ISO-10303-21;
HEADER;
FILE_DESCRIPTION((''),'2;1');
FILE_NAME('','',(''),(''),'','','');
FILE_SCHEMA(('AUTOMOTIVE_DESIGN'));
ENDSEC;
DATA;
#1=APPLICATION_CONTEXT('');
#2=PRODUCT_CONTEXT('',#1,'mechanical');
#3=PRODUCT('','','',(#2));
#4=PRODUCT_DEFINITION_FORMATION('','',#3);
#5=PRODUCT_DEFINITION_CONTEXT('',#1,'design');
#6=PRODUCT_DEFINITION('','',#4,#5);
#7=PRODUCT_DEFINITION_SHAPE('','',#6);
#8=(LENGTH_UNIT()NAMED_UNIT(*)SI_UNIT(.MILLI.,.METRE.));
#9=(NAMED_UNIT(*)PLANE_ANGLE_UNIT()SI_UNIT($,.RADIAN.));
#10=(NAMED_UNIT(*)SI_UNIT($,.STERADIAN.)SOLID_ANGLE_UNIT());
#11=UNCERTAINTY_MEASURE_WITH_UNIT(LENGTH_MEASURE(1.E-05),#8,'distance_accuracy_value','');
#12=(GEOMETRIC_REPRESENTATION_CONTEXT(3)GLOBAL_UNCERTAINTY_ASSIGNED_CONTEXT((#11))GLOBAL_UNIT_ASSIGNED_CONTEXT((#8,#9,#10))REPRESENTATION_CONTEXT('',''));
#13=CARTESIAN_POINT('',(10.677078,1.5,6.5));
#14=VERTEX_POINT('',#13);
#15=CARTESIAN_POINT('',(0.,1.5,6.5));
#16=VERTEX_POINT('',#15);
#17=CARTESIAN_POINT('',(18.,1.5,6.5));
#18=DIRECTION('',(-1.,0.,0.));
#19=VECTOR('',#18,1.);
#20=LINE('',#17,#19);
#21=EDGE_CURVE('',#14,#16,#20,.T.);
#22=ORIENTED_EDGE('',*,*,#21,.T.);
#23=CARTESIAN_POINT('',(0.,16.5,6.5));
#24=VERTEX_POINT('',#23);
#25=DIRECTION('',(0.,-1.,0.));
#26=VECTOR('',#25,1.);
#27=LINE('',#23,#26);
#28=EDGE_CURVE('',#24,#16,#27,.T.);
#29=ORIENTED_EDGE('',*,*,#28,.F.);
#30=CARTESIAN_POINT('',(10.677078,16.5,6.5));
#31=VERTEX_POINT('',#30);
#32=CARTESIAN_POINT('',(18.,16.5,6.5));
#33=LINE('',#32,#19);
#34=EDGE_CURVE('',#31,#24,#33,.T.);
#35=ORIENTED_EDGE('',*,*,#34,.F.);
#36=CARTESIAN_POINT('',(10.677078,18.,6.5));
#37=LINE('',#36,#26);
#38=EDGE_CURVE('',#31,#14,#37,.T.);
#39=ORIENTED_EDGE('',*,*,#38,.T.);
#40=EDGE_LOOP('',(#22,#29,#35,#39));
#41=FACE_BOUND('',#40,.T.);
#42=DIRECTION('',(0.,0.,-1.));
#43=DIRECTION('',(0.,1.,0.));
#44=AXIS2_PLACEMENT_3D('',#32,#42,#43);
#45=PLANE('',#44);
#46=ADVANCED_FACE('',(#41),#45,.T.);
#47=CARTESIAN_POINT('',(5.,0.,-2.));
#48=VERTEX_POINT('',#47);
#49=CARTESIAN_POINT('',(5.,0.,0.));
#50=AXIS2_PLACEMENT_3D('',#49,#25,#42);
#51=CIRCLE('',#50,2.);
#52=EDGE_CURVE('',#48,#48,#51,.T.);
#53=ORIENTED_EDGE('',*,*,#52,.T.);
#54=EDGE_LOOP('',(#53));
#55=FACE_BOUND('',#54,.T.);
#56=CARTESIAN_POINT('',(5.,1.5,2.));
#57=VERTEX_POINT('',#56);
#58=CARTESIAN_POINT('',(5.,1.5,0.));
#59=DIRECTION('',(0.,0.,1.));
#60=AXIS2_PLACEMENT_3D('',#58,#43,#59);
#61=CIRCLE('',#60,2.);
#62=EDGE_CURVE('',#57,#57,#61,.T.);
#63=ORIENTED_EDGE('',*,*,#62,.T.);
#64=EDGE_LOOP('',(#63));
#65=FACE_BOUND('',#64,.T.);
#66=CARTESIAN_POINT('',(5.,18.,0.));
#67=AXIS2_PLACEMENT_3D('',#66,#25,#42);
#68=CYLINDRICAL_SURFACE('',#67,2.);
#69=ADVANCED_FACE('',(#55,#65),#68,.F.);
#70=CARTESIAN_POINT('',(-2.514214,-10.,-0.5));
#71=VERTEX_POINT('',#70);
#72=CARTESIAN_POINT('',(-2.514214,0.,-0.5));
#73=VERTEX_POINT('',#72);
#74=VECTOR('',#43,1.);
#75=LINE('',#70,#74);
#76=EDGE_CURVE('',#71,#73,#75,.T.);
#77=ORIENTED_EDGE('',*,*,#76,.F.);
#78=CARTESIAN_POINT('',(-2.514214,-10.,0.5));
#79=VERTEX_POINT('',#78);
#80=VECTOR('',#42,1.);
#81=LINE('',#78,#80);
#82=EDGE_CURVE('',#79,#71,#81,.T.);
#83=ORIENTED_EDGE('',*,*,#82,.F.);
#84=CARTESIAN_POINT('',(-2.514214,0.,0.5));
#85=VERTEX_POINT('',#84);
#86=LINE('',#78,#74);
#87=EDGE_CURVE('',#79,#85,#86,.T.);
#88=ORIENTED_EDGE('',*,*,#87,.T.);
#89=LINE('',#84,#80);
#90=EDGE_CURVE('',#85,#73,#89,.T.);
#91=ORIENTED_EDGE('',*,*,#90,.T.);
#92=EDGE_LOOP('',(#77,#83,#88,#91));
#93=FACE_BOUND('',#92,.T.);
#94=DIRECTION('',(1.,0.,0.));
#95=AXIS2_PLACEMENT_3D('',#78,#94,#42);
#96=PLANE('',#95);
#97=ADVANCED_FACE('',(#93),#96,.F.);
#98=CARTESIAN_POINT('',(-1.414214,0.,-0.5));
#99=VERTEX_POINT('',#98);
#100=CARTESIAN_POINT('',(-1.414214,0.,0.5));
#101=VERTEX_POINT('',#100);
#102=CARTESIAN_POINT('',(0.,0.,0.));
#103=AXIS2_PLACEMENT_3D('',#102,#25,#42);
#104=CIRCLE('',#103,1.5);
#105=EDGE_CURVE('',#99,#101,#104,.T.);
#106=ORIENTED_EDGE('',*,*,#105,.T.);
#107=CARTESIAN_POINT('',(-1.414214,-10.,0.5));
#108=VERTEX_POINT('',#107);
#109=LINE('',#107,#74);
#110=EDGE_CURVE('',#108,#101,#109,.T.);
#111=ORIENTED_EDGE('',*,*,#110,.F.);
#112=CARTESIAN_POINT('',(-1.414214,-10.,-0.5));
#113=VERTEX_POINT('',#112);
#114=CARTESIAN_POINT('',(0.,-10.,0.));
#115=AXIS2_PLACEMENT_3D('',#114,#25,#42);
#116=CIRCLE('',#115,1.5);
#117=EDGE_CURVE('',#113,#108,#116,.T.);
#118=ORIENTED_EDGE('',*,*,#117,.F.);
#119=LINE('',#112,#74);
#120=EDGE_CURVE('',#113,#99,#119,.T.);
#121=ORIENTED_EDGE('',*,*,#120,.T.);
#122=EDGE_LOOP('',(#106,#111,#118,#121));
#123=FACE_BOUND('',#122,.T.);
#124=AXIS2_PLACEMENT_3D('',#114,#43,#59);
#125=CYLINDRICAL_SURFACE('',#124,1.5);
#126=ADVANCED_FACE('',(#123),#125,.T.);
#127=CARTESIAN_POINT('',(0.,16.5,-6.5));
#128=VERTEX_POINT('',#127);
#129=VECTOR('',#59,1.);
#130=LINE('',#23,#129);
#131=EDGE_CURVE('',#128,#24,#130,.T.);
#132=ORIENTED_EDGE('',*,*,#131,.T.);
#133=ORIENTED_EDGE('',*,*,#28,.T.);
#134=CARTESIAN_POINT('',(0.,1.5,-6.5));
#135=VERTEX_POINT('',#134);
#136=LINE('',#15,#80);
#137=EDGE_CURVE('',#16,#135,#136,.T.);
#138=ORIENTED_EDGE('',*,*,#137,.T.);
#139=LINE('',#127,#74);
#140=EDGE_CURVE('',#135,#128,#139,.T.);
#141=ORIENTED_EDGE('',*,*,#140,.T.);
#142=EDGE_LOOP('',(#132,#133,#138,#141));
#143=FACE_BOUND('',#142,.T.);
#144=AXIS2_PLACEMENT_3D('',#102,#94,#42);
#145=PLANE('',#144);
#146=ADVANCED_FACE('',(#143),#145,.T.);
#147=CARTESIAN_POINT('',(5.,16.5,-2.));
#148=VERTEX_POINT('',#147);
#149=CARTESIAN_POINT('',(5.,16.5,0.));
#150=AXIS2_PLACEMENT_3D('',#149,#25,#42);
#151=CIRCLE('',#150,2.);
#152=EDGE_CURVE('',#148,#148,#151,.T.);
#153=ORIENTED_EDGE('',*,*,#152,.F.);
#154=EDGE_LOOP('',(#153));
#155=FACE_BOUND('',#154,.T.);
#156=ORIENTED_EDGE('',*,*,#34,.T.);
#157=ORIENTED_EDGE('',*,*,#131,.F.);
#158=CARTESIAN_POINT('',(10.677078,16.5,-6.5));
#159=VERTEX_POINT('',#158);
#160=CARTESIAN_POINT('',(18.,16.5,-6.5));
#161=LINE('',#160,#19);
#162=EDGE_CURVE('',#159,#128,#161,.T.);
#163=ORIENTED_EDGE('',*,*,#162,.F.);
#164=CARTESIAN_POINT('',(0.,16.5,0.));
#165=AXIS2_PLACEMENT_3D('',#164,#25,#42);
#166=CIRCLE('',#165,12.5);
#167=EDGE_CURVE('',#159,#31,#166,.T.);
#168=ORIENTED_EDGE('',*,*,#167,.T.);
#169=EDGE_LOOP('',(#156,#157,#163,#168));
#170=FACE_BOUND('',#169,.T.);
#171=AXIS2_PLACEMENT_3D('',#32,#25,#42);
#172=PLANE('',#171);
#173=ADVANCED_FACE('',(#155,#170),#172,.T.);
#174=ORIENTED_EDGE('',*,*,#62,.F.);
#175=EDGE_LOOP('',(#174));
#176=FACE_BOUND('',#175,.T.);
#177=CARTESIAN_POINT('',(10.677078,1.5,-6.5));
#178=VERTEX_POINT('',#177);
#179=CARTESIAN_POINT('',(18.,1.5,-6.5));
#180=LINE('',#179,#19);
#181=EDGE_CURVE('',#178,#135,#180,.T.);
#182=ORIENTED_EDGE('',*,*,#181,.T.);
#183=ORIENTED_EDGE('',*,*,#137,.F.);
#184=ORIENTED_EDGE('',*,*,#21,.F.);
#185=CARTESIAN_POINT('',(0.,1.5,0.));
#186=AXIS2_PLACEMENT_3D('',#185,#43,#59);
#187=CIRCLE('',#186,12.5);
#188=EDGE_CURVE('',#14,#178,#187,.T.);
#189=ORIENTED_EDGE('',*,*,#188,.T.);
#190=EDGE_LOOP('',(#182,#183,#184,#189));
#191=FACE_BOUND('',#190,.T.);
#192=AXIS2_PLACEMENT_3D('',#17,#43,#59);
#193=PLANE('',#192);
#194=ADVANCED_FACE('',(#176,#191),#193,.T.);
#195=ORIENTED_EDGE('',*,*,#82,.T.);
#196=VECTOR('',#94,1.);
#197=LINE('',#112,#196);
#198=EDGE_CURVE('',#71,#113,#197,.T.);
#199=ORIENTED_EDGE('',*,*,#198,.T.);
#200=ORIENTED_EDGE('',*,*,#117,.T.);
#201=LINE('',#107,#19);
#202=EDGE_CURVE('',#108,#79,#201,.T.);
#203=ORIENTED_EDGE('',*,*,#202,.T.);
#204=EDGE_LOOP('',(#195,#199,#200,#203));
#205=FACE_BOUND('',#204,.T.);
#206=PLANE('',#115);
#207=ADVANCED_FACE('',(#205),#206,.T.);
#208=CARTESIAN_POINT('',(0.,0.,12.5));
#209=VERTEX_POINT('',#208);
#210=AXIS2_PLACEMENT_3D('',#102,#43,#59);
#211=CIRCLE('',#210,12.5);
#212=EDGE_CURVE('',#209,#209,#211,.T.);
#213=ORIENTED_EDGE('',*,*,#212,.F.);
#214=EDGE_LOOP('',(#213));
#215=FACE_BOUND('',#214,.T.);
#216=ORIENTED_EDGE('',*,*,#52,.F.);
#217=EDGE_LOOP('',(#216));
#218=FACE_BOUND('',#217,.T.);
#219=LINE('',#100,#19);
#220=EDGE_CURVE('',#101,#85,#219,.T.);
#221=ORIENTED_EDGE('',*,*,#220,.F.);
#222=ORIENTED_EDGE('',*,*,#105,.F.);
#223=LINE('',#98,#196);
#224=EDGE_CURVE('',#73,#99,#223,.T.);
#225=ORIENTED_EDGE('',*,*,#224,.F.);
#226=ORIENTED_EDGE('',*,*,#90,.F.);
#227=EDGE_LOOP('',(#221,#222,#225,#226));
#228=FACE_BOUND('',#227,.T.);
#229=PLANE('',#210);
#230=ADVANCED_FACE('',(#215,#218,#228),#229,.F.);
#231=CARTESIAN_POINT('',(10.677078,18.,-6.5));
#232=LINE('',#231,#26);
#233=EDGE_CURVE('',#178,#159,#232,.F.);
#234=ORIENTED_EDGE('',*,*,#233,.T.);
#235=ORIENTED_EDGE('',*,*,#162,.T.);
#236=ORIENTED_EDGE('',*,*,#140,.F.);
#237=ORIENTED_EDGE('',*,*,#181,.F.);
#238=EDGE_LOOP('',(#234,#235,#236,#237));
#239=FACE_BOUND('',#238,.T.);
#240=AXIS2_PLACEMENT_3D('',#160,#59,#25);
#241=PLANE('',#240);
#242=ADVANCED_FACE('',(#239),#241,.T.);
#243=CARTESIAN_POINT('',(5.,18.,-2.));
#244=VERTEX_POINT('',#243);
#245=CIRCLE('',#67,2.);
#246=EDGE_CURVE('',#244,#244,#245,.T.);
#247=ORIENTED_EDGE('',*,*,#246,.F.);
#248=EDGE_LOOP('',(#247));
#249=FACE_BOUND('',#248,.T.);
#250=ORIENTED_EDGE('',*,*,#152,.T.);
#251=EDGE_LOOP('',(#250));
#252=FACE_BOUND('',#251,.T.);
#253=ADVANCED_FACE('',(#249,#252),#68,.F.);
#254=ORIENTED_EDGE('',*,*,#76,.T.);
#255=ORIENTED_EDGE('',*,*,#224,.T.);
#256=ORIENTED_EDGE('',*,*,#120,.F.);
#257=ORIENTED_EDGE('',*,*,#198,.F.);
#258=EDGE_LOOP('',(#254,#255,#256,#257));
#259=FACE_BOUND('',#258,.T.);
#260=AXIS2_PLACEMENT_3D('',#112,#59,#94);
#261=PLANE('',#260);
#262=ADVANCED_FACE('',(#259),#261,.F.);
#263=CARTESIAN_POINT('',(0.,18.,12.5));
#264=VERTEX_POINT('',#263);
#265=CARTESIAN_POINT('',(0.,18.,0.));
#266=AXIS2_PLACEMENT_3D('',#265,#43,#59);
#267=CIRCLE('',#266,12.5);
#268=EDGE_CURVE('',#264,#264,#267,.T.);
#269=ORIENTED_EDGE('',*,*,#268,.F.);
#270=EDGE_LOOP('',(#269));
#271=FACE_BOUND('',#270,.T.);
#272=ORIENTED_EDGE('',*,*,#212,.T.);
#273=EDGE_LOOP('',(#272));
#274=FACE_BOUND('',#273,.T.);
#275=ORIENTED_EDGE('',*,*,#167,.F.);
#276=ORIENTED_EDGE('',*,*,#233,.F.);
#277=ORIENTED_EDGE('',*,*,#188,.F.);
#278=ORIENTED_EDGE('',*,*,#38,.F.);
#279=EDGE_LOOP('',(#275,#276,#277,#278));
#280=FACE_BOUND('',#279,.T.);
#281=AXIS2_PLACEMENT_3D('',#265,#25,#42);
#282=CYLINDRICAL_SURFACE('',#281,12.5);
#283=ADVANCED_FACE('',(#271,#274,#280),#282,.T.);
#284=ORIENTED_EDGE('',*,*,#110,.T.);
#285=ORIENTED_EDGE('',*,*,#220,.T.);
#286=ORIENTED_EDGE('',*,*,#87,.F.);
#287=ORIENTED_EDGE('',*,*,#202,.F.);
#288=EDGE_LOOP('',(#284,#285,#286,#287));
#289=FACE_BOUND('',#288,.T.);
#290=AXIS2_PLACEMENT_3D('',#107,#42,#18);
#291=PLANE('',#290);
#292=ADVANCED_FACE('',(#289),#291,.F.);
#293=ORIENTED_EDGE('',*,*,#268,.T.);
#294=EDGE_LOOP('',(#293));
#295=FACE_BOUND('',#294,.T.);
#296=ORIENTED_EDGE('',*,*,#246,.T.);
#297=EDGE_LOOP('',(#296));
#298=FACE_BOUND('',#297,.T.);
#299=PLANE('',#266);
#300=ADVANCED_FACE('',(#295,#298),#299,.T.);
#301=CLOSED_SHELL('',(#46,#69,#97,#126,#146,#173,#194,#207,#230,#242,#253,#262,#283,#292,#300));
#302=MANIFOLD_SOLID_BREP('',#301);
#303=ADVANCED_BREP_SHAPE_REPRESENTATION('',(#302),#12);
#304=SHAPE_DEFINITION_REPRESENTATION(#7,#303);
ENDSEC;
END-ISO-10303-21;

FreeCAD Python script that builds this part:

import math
import FreeCAD as App
import Part
import Sketcher


def add_polygon(sketch, points):
    """Adds a closed chain of lines whose ends are joined by coincident constraints."""
    first, n = sketch.GeometryCount, len(points)
    for a, b in zip(points, points[1:] + points[:1]):
        sketch.addGeometry(Part.LineSegment(App.Vector(*a, 0), App.Vector(*b, 0)), False)
    for i in range(n):
        sketch.addConstraint(Sketcher.Constraint("Coincident", first + i, 2, first + (i + 1) % n, 1))

doc = App.newDocument("Part")
body = doc.addObject("PartDesign::Body", "Body")

sketch1 = body.newObject("Sketcher::SketchObject", "Sketch")
sketch1.AttachmentSupport = (doc.getObject("XZ_Plane"), [""])
sketch1.MapMode = "FlatFace"
sketch1.addGeometry(Part.Circle(App.Vector(0, 0, 0), App.Vector(0, 0, 1), 12.5), False)
sketch1.addConstraint(Sketcher.Constraint("Coincident", 0, 3, -1, 1))
sketch1.addConstraint(Sketcher.Constraint("Diameter", 0, 25.0))
pad1 = body.newObject("PartDesign::Pad", "Pad")
pad1.Profile = sketch1
pad1.Length = 18
pad1.Reversed = True

sketch2 = body.newObject("Sketcher::SketchObject", "Sketch001")
sketch2.AttachmentSupport = (doc.getObject("YZ_Plane"), [""])
sketch2.MapMode = "FlatFace"
add_polygon(sketch2, [(16.5, 6.5), (1.5, 6.5), (1.5, -6.5), (16.5, -6.5)])
sketch2.addConstraint(Sketcher.Constraint("Horizontal", 0))
sketch2.addConstraint(Sketcher.Constraint("Vertical", 1))
sketch2.addConstraint(Sketcher.Constraint("Horizontal", 2))
sketch2.addConstraint(Sketcher.Constraint("Vertical", 3))
sketch2.addConstraint(Sketcher.Constraint("DistanceX", 0, 2, 0, 1, 15.0))
sketch2.addConstraint(Sketcher.Constraint("DistanceY", 1, 2, 1, 1, 13.0))
sketch2.addConstraint(Sketcher.Constraint("DistanceX", -1, 1, 0, 2, 1.5))
sketch2.addConstraint(Sketcher.Constraint("DistanceY", -1, 1, 0, 2, 6.5))
pocket1 = body.newObject("PartDesign::Pocket", "Pocket")
pocket1.Profile = sketch2
pocket1.Length = 18
pocket1.Reversed = True

sketch3 = body.newObject("Sketcher::SketchObject", "Sketch002")
sketch3.AttachmentSupport = (doc.getObject("XZ_Plane"), [""])
sketch3.MapMode = "FlatFace"
sketch3.addGeometry(Part.Circle(App.Vector(5, 0, 0), App.Vector(0, 0, 1), 2), False)
sketch3.addConstraint(Sketcher.Constraint("PointOnObject", 0, 3, -1))
sketch3.addConstraint(Sketcher.Constraint("Diameter", 0, 4.0))
sketch3.addConstraint(Sketcher.Constraint("DistanceX", -1, 1, 0, 3, 5.0))
pocket2 = body.newObject("PartDesign::Pocket", "Pocket001")
pocket2.Profile = sketch3
pocket2.Length = 26.228952

sketch4 = body.newObject("Sketcher::SketchObject", "Sketch003")
sketch4.AttachmentSupport = (doc.getObject("XZ_Plane"), [""])
sketch4.MapMode = "FlatFace"
sketch4.addGeometry(Part.LineSegment(App.Vector(-1.414214, 0.5, 0), App.Vector(-2.514214, 0.5, 0)), False)
sketch4.addGeometry(Part.LineSegment(App.Vector(-2.514214, 0.5, 0), App.Vector(-2.514214, -0.5, 0)), False)
sketch4.addGeometry(Part.LineSegment(App.Vector(-2.514214, -0.5, 0), App.Vector(-1.414214, -0.5, 0)), False)
sketch4.addGeometry(Part.ArcOfCircle(Part.Circle(App.Vector(0, 0, 0), App.Vector(0, 0, 1), 1.5), math.radians(-160.528779), math.radians(160.528779)), False)
sketch4.addConstraint(Sketcher.Constraint("Coincident", 0, 2, 1, 1))
sketch4.addConstraint(Sketcher.Constraint("Coincident", 1, 2, 2, 1))
sketch4.addConstraint(Sketcher.Constraint("Coincident", 2, 2, 3, 1))
sketch4.addConstraint(Sketcher.Constraint("Coincident", 3, 2, 0, 1))
sketch4.addConstraint(Sketcher.Constraint("Horizontal", 0))
sketch4.addConstraint(Sketcher.Constraint("Vertical", 1))
sketch4.addConstraint(Sketcher.Constraint("Horizontal", 2))
sketch4.addConstraint(Sketcher.Constraint("Coincident", 3, 3, -1, 1))
sketch4.addConstraint(Sketcher.Constraint("Vertical", 2, 2, 3, 2))
sketch4.addConstraint(Sketcher.Constraint("Radius", 3, 1.5))
sketch4.addConstraint(Sketcher.Constraint("DistanceY", 1, 2, 1, 1, 1.0))
sketch4.addConstraint(Sketcher.Constraint("DistanceX", 0, 2, 0, 1, 1.1))
pad2 = body.newObject("PartDesign::Pad", "Pad001")
pad2.Profile = sketch4
pad2.Length = 10

doc.recompute()
